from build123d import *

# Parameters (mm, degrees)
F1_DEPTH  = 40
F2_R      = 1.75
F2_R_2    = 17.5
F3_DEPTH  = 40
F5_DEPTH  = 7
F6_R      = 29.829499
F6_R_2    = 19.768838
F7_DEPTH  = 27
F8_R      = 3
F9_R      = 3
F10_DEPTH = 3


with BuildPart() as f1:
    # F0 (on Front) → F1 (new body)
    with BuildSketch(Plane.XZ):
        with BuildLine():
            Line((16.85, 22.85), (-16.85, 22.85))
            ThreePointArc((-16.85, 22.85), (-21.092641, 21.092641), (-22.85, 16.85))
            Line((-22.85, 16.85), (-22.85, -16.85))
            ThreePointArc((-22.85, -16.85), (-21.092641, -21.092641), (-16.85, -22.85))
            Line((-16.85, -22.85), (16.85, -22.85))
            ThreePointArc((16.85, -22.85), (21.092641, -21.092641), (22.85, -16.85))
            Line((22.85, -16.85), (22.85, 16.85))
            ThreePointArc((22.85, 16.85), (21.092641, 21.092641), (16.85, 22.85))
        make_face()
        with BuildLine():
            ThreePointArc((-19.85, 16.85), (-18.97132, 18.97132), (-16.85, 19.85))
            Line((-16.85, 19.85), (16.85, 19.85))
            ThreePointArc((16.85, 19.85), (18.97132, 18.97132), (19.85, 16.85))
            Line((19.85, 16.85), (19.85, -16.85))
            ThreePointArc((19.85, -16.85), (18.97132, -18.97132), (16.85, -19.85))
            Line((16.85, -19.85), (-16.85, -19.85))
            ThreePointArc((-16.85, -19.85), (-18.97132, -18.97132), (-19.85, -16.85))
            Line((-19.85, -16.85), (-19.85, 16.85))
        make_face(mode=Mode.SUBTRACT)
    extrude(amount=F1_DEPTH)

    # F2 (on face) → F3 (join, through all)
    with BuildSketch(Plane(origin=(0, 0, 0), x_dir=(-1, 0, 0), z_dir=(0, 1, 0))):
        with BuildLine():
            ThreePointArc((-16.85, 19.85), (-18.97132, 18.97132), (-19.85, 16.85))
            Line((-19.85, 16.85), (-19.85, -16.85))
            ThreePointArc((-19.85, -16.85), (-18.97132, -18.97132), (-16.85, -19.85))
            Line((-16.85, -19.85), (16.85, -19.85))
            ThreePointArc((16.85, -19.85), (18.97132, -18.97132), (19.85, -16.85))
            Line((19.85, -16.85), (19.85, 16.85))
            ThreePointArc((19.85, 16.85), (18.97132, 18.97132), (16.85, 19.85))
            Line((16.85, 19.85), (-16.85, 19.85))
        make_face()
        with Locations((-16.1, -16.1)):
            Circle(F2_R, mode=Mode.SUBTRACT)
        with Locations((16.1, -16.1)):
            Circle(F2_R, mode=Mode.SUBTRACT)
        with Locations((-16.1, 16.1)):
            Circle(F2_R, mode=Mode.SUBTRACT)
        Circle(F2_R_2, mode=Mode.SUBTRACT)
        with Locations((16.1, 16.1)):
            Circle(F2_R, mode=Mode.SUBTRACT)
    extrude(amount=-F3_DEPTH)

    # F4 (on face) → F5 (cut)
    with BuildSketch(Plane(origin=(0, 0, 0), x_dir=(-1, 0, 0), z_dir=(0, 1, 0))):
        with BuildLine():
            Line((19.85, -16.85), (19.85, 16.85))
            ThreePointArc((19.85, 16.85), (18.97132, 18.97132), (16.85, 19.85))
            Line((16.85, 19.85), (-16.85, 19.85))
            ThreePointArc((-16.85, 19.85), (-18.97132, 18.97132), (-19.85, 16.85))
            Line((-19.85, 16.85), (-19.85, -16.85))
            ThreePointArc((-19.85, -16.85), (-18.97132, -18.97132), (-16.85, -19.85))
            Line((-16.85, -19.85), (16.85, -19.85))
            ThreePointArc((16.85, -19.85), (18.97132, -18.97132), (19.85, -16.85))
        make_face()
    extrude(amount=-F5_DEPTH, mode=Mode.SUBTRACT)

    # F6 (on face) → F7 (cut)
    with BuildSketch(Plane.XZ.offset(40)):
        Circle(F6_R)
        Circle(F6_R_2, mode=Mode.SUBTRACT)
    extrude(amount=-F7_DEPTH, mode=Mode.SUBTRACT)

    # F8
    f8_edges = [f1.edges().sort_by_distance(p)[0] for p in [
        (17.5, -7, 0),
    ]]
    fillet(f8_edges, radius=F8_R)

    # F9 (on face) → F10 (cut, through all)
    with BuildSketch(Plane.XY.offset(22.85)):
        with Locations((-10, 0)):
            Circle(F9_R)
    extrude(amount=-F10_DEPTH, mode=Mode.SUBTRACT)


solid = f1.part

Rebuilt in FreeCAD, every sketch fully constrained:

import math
import FreeCAD as App
import Part
import Sketcher
from FreeCAD import Vector
Q = App.Units.Quantity


def edges_at(feature, points):
    """Names of the edges that pass closest to the given points."""
    edges = feature.Shape.Edges
    near = lambda p: min(range(len(edges)), key=lambda i: edges[i].distToShape(Part.Vertex(*p))[0])
    return sorted({f"Edge{near(p) + 1}" for p in points})

doc = App.newDocument("Part")
body = doc.addObject("PartDesign::Body", "Body")

# Sketch on XZ plane
sketch1 = body.newObject("Sketcher::SketchObject", "Sketch")
sketch1.AttachmentSupport = (doc.getObject("XZ_Plane"), [""])
sketch1.MapMode = "FlatFace"
sketch1.addGeometry(Part.LineSegment(Vector(16.9, 22.9, 0), Vector(-16.9, 22.9, 0)), False)
sketch1.addGeometry(Part.ArcOfCircle(Part.Circle(Vector(-16.9, 16.9, 0), Vector(0, 0, 1), 6), math.radians(90), math.radians(180)), False)
sketch1.addGeometry(Part.LineSegment(Vector(-22.9, 16.9, 0), Vector(-22.9, -16.9, 0)), False)
sketch1.addGeometry(Part.ArcOfCircle(Part.Circle(Vector(-16.9, -16.9, 0), Vector(0, 0, 1), 6), math.radians(180), math.radians(270)), False)
sketch1.addGeometry(Part.LineSegment(Vector(-16.9, -22.9, 0), Vector(16.9, -22.9, 0)), False)
sketch1.addGeometry(Part.ArcOfCircle(Part.Circle(Vector(16.9, -16.9, 0), Vector(0, 0, 1), 6), math.radians(-90), math.radians(0)), False)
sketch1.addGeometry(Part.LineSegment(Vector(22.9, -16.9, 0), Vector(22.9, 16.9, 0)), False)
sketch1.addGeometry(Part.ArcOfCircle(Part.Circle(Vector(16.9, 16.9, 0), Vector(0, 0, 1), 6), math.radians(0), math.radians(90)), False)
sketch1.addGeometry(Part.LineSegment(Vector(-19.9, -16.9, 0), Vector(-19.9, 16.9, 0)), False)
sketch1.addGeometry(Part.ArcOfCircle(Part.Circle(Vector(-16.8, 16.8, 0), Vector(0, 0, 1), 3), math.radians(90), math.radians(180)), False)
sketch1.addGeometry(Part.LineSegment(Vector(-16.9, 19.9, 0), Vector(16.9, 19.9, 0)), False)
sketch1.addGeometry(Part.ArcOfCircle(Part.Circle(Vector(16.8, 16.8, 0), Vector(0, 0, 1), 3), math.radians(0), math.radians(90)), False)
sketch1.addGeometry(Part.LineSegment(Vector(19.9, 16.9, 0), Vector(19.9, -16.9, 0)), False)
sketch1.addGeometry(Part.ArcOfCircle(Part.Circle(Vector(16.8, -16.8, 0), Vector(0, 0, 1), 3), math.radians(-90), math.radians(0)), False)
sketch1.addGeometry(Part.LineSegment(Vector(16.9, -19.9, 0), Vector(-16.9, -19.9, 0)), False)
sketch1.addGeometry(Part.ArcOfCircle(Part.Circle(Vector(-16.8, -16.8, 0), Vector(0, 0, 1), 3), math.radians(-180), math.radians(-90)), False)
sketch1.addConstraint(Sketcher.Constraint("Tangent", 0, 2, 1, 1))
sketch1.addConstraint(Sketcher.Constraint("Tangent", 1, 2, 2, 1))
sketch1.addConstraint(Sketcher.Constraint("Tangent", 2, 2, 3, 1))
sketch1.addConstraint(Sketcher.Constraint("Tangent", 3, 2, 4, 1))
sketch1.addConstraint(Sketcher.Constraint("Tangent", 4, 2, 5, 1))
sketch1.addConstraint(Sketcher.Constraint("Tangent", 5, 2, 6, 1))
sketch1.addConstraint(Sketcher.Constraint("Tangent", 6, 2, 7, 1))
sketch1.addConstraint(Sketcher.Constraint("Tangent", 7, 2, 0, 1))
sketch1.addConstraint(Sketcher.Constraint("Tangent", 8, 2, 9, 2))
sketch1.addConstraint(Sketcher.Constraint("Tangent", 9, 1, 10, 1))
sketch1.addConstraint(Sketcher.Constraint("Tangent", 10, 2, 11, 2))
sketch1.addConstraint(Sketcher.Constraint("Tangent", 11, 1, 12, 1))
sketch1.addConstraint(Sketcher.Constraint("Tangent", 12, 2, 13, 2))
sketch1.addConstraint(Sketcher.Constraint("Tangent", 13, 1, 14, 1))
sketch1.addConstraint(Sketcher.Constraint("Tangent", 14, 2, 15, 2))
sketch1.addConstraint(Sketcher.Constraint("Tangent", 15, 1, 8, 1))
sketch1.addConstraint(Sketcher.Constraint("Horizontal", 0))
sketch1.addConstraint(Sketcher.Constraint("Vertical", 2))
sketch1.addConstraint(Sketcher.Constraint("Horizontal", 4))
sketch1.addConstraint(Sketcher.Constraint("Vertical", 6))
sketch1.addConstraint(Sketcher.Constraint("Vertical", 8))
sketch1.addConstraint(Sketcher.Constraint("Horizontal", 10))
sketch1.addConstraint(Sketcher.Constraint("Vertical", 12))
sketch1.addConstraint(Sketcher.Constraint("Horizontal", 14))
sketch1.addConstraint(Sketcher.Constraint("Coincident", 9, 3, 1, 3))
sketch1.addConstraint(Sketcher.Constraint("Coincident", 11, 3, 7, 3))
sketch1.addConstraint(Sketcher.Constraint("Coincident", 13, 3, 5, 3))
sketch1.addConstraint(Sketcher.Constraint("Equal", 1, 3))
sketch1.addConstraint(Sketcher.Constraint("Equal", 3, 5))
sketch1.addConstraint(Sketcher.Constraint("Equal", 5, 7))
sketch1.addConstraint(Sketcher.Constraint("Equal", 13, 15))
sketch1.addConstraint(Sketcher.Constraint("Symmetric", 1, 3, 5, 3, -1, 1))
sketch1.addConstraint(Sketcher.Constraint("Equal", 14, 2))
sketch1.addConstraint(Sketcher.Constraint("Radius", 1, Q("5.999999 mm")))
sketch1.addConstraint(Sketcher.Constraint("Radius", 9, Q("3.000001 mm")))
sketch1.addConstraint(Sketcher.Constraint("DistanceX", 0, 2, 0, 1, Q("33.7 mm")))
pad1 = body.newObject("PartDesign::Pad", "Pad")
pad1.Profile = sketch1
pad1.Length = 40

# Sketch on XZ plane
sketch2 = body.newObject("Sketcher::SketchObject", "Sketch001")
sketch2.AttachmentSupport = (doc.getObject("XZ_Plane"), [""])
sketch2.MapMode = "FlatFace"
sketch2.addGeometry(Part.ArcOfCircle(Part.Circle(Vector(16.8, 16.8, 0), Vector(0, 0, 1), 3), math.radians(0), math.radians(90)), False)
sketch2.addGeometry(Part.LineSegment(Vector(19.9, 16.9, 0), Vector(19.9, -16.9, 0)), False)
sketch2.addGeometry(Part.ArcOfCircle(Part.Circle(Vector(16.8, -16.8, 0), Vector(0, 0, 1), 3), math.radians(-90), math.radians(0)), False)
sketch2.addGeometry(Part.LineSegment(Vector(16.9, -19.9, 0), Vector(-16.9, -19.9, 0)), False)
sketch2.addGeometry(Part.ArcOfCircle(Part.Circle(Vector(-16.8, -16.8, 0), Vector(0, 0, 1), 3), math.radians(-180), math.radians(-90)), False)
sketch2.addGeometry(Part.LineSegment(Vector(-19.9, -16.9, 0), Vector(-19.9, 16.9, 0)), False)
sketch2.addGeometry(Part.ArcOfCircle(Part.Circle(Vector(-16.8, 16.8, 0), Vector(0, 0, 1), 3), math.radians(90), math.radians(180)), False)
sketch2.addGeometry(Part.LineSegment(Vector(-16.9, 19.9, 0), Vector(16.9, 19.9, 0)), False)
sketch2.addGeometry(Part.Circle(Vector(16.1, -16.1, 0), Vector(0, 0, 1), 1.8), False)
sketch2.addGeometry(Part.Circle(Vector(-16.1, -16.1, 0), Vector(0, 0, 1), 1.8), False)
sketch2.addGeometry(Part.Circle(Vector(16.1, 16.1, 0), Vector(0, 0, 1), 1.8), False)
sketch2.addGeometry(Part.Circle(Vector(0, 0, 0), Vector(0, 0, 1), 17.5), False)
sketch2.addGeometry(Part.Circle(Vector(-16.1, 16.1, 0), Vector(0, 0, 1), 1.8), False)
sketch2.addConstraint(Sketcher.Constraint("Tangent", 0, 1, 1, 1))
sketch2.addConstraint(Sketcher.Constraint("Tangent", 1, 2, 2, 2))
sketch2.addConstraint(Sketcher.Constraint("Tangent", 2, 1, 3, 1))
sketch2.addConstraint(Sketcher.Constraint("Tangent", 3, 2, 4, 2))
sketch2.addConstraint(Sketcher.Constraint("Tangent", 4, 1, 5, 1))
sketch2.addConstraint(Sketcher.Constraint("Tangent", 5, 2, 6, 2))
sketch2.addConstraint(Sketcher.Constraint("Tangent", 6, 1, 7, 1))
sketch2.addConstraint(Sketcher.Constraint("Tangent", 7, 2, 0, 2))
sketch2.addConstraint(Sketcher.Constraint("Vertical", 1))
sketch2.addConstraint(Sketcher.Constraint("Horizontal", 3))
sketch2.addConstraint(Sketcher.Constraint("Vertical", 5))
sketch2.addConstraint(Sketcher.Constraint("Horizontal", 7))
sketch2.addConstraint(Sketcher.Constraint("Coincident", 11, 3, -1, 1))
sketch2.addConstraint(Sketcher.Constraint("Equal", 0, 2))
sketch2.addConstraint(Sketcher.Constraint("Equal", 2, 4))
sketch2.addConstraint(Sketcher.Constraint("Equal", 4, 6))
sketch2.addConstraint(Sketcher.Constraint("Equal", 8, 9))
sketch2.addConstraint(Sketcher.Constraint("Equal", 9, 10))
sketch2.addConstraint(Sketcher.Constraint("Equal", 10, 12))
sketch2.addConstraint(Sketcher.Constraint("Symmetric", 0, 3, 4, 3, -1, 1))
sketch2.addConstraint(Sketcher.Constraint("Symmetric", 9, 3, 10, 3, -1, 1))
sketch2.addConstraint(Sketcher.Constraint("Symmetric", 8, 3, 12, 3, -1, 1))
sketch2.addConstraint(Sketcher.Constraint("Symmetric", 8, 3, 9, 3, -2))
sketch2.addConstraint(Sketcher.Constraint("Equal", 7, 1))
sketch2.addConstraint(Sketcher.Constraint("Diameter", 11, Q("35 mm")))
sketch2.addConstraint(Sketcher.Constraint("Radius", 0, Q("3.000001 mm")))
sketch2.addConstraint(Sketcher.Constraint("Diameter", 8, Q("3.5 mm")))
sketch2.addConstraint(Sketcher.Constraint("DistanceX", 3, 2, 3, 1, Q("33.7 mm")))
sketch2.addConstraint(Sketcher.Constraint("DistanceX", -1, 1, 8, 3, Q("16.1 mm")))
sketch2.addConstraint(Sketcher.Constraint("DistanceY", 8, 3, -1, 1, Q("16.1 mm")))
pad2 = body.newObject("PartDesign::Pad", "Pad001")
pad2.Profile = sketch2
pad2.Length = 40

# Sketch on XZ plane
sketch3 = body.newObject("Sketcher::SketchObject", "Sketch002")
sketch3.AttachmentSupport = (doc.getObject("XZ_Plane"), [""])
sketch3.MapMode = "FlatFace"
sketch3.addGeometry(Part.LineSegment(Vector(-19.9, -16.9, 0), Vector(-19.9, 16.9, 0)), False)
sketch3.addGeometry(Part.ArcOfCircle(Part.Circle(Vector(-16.8, 16.8, 0), Vector(0, 0, 1), 3), math.radians(90), math.radians(180)), False)
sketch3.addGeometry(Part.LineSegment(Vector(-16.9, 19.9, 0), Vector(16.9, 19.9, 0)), False)
sketch3.addGeometry(Part.ArcOfCircle(Part.Circle(Vector(16.8, 16.8, 0), Vector(0, 0, 1), 3), math.radians(0), math.radians(90)), False)
sketch3.addGeometry(Part.LineSegment(Vector(19.9, 16.9, 0), Vector(19.9, -16.9, 0)), False)
sketch3.addGeometry(Part.ArcOfCircle(Part.Circle(Vector(16.8, -16.8, 0), Vector(0, 0, 1), 3), math.radians(-90), math.radians(0)), False)
sketch3.addGeometry(Part.LineSegment(Vector(16.9, -19.9, 0), Vector(-16.9, -19.9, 0)), False)
sketch3.addGeometry(Part.ArcOfCircle(Part.Circle(Vector(-16.8, -16.8, 0), Vector(0, 0, 1), 3), math.radians(-180), math.radians(-90)), False)
sketch3.addConstraint(Sketcher.Constraint("Tangent", 0, 2, 1, 2))
sketch3.addConstraint(Sketcher.Constraint("Tangent", 1, 1, 2, 1))
sketch3.addConstraint(Sketcher.Constraint("Tangent", 2, 2, 3, 2))
sketch3.addConstraint(Sketcher.Constraint("Tangent", 3, 1, 4, 1))
sketch3.addConstraint(Sketcher.Constraint("Tangent", 4, 2, 5, 2))
sketch3.addConstraint(Sketcher.Constraint("Tangent", 5, 1, 6, 1))
sketch3.addConstraint(Sketcher.Constraint("Tangent", 6, 2, 7, 2))
sketch3.addConstraint(Sketcher.Constraint("Tangent", 7, 1, 0, 1))
sketch3.addConstraint(Sketcher.Constraint("Vertical", 0))
sketch3.addConstraint(Sketcher.Constraint("Horizontal", 2))
sketch3.addConstraint(Sketcher.Constraint("Vertical", 4))
sketch3.addConstraint(Sketcher.Constraint("Horizontal", 6))
sketch3.addConstraint(Sketcher.Constraint("Equal", 1, 3))
sketch3.addConstraint(Sketcher.Constraint("Equal", 3, 5))
sketch3.addConstraint(Sketcher.Constraint("Equal", 5, 7))
sketch3.addConstraint(Sketcher.Constraint("Symmetric", 1, 3, 5, 3, -1, 1))
sketch3.addConstraint(Sketcher.Constraint("Equal", 6, 0))
sketch3.addConstraint(Sketcher.Constraint("Radius", 1, Q("3.000001 mm")))
sketch3.addConstraint(Sketcher.Constraint("DistanceX", 2, 1, 2, 2, Q("33.7 mm")))
pocket1 = body.newObject("PartDesign::Pocket", "Pocket")
pocket1.Profile = sketch3
pocket1.Length = 7
pocket1.Reversed = True

# Sketch on XZ plane
sketch4 = body.newObject("Sketcher::SketchObject", "Sketch003")
sketch4.AttachmentSupport = (doc.getObject("XZ_Plane"), [""])
sketch4.MapMode = "FlatFace"
sketch4.AttachmentOffset = App.Placement(Vector(0, 0, 40), App.Rotation())
sketch4.addGeometry(Part.Circle(Vector(0, 0, 0), Vector(0, 0, 1), 30), False)
sketch4.addGeometry(Part.Circle(Vector(0, 0, 0), Vector(0, 0, 1), 20), False)
sketch4.addConstraint(Sketcher.Constraint("Coincident", 0, 3, -1, 1))
sketch4.addConstraint(Sketcher.Constraint("Coincident", 1, 3, -1, 1))
sketch4.addConstraint(Sketcher.Constraint("Diameter", 0, Q("59.658998 mm")))
sketch4.addConstraint(Sketcher.Constraint("Diameter", 1, Q("39.537676 mm")))
pocket2 = body.newObject("PartDesign::Pocket", "Pocket001")
pocket2.Profile = sketch4
pocket2.Length = 27
doc.recompute()

fillet = body.newObject("PartDesign::Fillet", "Fillet")
fillet.Base = (pocket2, edges_at(pocket2, [(17.5, -7, 0)]))
fillet.Radius = 3

# Sketch on XY plane
sketch5 = body.newObject("Sketcher::SketchObject", "Sketch004")
sketch5.AttachmentSupport = (doc.getObject("XY_Plane"), [""])
sketch5.MapMode = "FlatFace"
sketch5.AttachmentOffset = App.Placement(Vector(0, 0, 22.85), App.Rotation())
sketch5.addGeometry(Part.Circle(Vector(-10, 0, 0), Vector(0, 0, 1), 3), False)
sketch5.addConstraint(Sketcher.Constraint("PointOnObject", 0, 3, -1))
sketch5.addConstraint(Sketcher.Constraint("Diameter", 0, Q("6 mm")))
sketch5.addConstraint(Sketcher.Constraint("DistanceX", 0, 3, -1, 1, Q("10 mm")))
pocket3 = body.newObject("PartDesign::Pocket", "Pocket002")
pocket3.Profile = sketch5
pocket3.Length = 3

doc.recompute()
